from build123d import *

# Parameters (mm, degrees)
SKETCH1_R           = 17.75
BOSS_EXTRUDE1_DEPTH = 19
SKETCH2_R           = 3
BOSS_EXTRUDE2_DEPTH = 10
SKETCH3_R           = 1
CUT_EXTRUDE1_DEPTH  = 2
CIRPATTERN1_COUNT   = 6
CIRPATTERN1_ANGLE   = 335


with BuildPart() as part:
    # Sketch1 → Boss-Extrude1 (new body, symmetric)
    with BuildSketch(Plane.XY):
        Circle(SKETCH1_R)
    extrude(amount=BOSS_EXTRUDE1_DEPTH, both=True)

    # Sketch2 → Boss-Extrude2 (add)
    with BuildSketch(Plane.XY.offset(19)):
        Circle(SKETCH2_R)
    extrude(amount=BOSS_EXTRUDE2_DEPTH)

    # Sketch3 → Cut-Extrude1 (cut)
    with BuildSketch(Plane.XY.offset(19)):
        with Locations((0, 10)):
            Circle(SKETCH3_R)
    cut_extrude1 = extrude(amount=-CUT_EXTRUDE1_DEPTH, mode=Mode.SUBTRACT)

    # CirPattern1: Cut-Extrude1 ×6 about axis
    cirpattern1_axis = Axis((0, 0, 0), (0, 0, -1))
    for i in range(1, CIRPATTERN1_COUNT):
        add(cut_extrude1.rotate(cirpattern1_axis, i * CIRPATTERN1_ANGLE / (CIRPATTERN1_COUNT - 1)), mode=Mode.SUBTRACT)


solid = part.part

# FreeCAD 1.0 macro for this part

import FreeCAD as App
import Part
import Sketcher

doc = App.newDocument("Part")
params = doc.addObject("Spreadsheet::Sheet", "Params")
for row, (alias, value) in enumerate([
    ("sketch1_diameter", "35.5 mm"),
    ("pad1_length", "38 mm"),
    ("sketch2_diameter", "6 mm"),
    ("pad2_length", "10 mm"),
    ("sketch3_diameter", "2 mm"),
    ("pocket1_length", "2 mm"),
], start=1):
    params.set(f"A{row}", alias)
    params.set(f"B{row}", "=" + value)
    params.setAlias(f"B{row}", alias)

body = doc.addObject("PartDesign::Body", "Body")

# Sketch on XY plane
sketch1 = body.newObject("Sketcher::SketchObject", "Sketch")
sketch1.AttachmentSupport = (doc.getObject("XY_Plane"), [""])
sketch1.MapMode = "FlatFace"
sketch1.addGeometry(Part.Circle(App.Vector(0, 0, 0), App.Vector(0, 0, 1), 18), False)
sketch1.addConstraint(Sketcher.Constraint("Coincident", 0, 3, -1, 1))
sketch1.addConstraint(Sketcher.Constraint("Diameter", 0, 35.5))
sketch1.setExpression("Constraints[1]", "Params.sketch1_diameter")
pad1 = body.newObject("PartDesign::Pad", "Pad")
pad1.Profile = sketch1
pad1.setExpression("Length", "Params.pad1_length")
pad1.Midplane = True

# Sketch on XY plane
sketch2 = body.newObject("Sketcher::SketchObject", "Sketch001")
sketch2.AttachmentSupport = (doc.getObject("XY_Plane"), [""])
sketch2.MapMode = "FlatFace"
sketch2.AttachmentOffset = App.Placement(App.Vector(0, 0, 19), App.Rotation())
sketch2.addGeometry(Part.Circle(App.Vector(0, 0, 0), App.Vector(0, 0, 1), 3), False)
sketch2.addConstraint(Sketcher.Constraint("Coincident", 0, 3, -1, 1))
sketch2.addConstraint(Sketcher.Constraint("Diameter", 0, 6.0))
sketch2.setExpression("Constraints[1]", "Params.sketch2_diameter")
pad2 = body.newObject("PartDesign::Pad", "Pad001")
pad2.Profile = sketch2
pad2.setExpression("Length", "Params.pad2_length")

# Sketch on XY plane
sketch3 = body.newObject("Sketcher::SketchObject", "Sketch002")
sketch3.AttachmentSupport = (doc.getObject("XY_Plane"), [""])
sketch3.MapMode = "FlatFace"
sketch3.AttachmentOffset = App.Placement(App.Vector(0, 0, 19), App.Rotation())
sketch3.addGeometry(Part.Circle(App.Vector(0, 10, 0), App.Vector(0, 0, 1), 1), False)
sketch3.addConstraint(Sketcher.Constraint("PointOnObject", 0, 3, -2))
sketch3.addConstraint(Sketcher.Constraint("Diameter", 0, 2.0))
sketch3.addConstraint(Sketcher.Constraint("DistanceY", -1, 1, 0, 3, 10.0))
sketch3.setExpression("Constraints[1]", "Params.sketch3_diameter")
pocket1 = body.newObject("PartDesign::Pocket", "Pocket")
pocket1.Profile = sketch3
pocket1.setExpression("Length", "Params.pocket1_length")
doc.recompute()

polarpattern = body.newObject("PartDesign::PolarPattern", "PolarPattern")
polarpattern.Originals = [pocket1]
polarpattern.Axis = (doc.getObject("Z_Axis"), [""])
polarpattern.Angle = 335
polarpattern.Occurrences = 6
polarpattern.Reversed = True
body.Tip = polarpattern

doc.recompute()
